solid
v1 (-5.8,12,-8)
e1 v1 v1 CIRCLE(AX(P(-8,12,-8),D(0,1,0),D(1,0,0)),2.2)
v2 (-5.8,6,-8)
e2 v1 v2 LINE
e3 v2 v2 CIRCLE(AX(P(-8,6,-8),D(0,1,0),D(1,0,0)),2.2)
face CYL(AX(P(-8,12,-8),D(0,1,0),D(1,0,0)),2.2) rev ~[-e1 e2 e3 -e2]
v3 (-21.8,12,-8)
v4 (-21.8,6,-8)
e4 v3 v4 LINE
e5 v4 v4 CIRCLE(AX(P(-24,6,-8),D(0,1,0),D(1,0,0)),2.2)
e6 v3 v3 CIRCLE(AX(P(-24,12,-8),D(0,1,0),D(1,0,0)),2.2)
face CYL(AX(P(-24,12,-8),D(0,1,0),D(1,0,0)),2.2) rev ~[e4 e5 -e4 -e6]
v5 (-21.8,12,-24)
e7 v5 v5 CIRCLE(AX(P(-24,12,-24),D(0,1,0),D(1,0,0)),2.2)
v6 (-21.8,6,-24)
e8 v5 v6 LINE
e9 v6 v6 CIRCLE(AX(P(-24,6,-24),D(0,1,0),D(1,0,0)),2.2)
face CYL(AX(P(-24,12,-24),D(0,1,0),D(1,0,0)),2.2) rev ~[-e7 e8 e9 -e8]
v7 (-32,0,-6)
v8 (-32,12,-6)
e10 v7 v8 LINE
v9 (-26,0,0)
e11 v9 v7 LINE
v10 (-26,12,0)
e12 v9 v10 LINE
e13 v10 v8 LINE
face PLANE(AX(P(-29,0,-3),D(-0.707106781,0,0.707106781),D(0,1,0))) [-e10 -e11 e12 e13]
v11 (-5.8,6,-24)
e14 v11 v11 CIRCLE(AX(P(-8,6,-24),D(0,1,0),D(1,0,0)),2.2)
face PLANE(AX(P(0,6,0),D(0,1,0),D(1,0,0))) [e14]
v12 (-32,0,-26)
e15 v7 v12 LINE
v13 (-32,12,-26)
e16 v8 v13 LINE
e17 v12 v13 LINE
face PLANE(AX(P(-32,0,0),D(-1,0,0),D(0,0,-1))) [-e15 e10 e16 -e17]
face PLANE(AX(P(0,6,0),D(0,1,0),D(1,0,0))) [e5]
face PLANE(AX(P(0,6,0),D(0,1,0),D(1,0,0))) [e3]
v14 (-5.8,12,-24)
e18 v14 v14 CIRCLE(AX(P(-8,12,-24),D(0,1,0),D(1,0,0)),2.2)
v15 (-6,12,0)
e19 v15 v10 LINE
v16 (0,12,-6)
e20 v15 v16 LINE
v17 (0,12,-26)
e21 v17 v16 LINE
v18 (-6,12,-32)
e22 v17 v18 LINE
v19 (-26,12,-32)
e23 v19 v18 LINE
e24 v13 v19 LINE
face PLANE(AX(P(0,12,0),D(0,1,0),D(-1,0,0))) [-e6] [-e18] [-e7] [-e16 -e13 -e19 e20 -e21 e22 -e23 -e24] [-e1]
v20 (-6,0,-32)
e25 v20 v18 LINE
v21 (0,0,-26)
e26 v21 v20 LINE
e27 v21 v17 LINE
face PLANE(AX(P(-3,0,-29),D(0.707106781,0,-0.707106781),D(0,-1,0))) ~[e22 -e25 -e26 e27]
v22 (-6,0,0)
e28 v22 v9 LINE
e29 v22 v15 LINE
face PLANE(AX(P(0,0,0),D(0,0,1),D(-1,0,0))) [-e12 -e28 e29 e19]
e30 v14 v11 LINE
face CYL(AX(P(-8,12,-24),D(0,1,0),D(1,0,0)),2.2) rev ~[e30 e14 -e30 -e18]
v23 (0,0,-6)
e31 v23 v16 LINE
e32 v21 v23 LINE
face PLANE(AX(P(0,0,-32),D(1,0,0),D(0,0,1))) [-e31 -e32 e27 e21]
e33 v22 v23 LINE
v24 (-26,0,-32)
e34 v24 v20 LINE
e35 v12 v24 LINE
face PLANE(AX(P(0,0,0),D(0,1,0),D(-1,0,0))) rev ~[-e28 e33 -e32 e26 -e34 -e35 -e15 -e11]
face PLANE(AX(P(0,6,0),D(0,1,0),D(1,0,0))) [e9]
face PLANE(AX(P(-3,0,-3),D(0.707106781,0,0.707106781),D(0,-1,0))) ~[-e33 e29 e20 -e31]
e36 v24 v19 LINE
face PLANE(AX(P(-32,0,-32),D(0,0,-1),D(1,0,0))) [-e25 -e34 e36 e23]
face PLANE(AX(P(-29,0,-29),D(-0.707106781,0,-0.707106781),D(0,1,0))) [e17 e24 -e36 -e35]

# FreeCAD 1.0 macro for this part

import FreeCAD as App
import Part
import Sketcher


def edges_at(feature, points):
    """Names of the edges that pass closest to the given points."""
    edges = feature.Shape.Edges
    near = lambda p: min(range(len(edges)), key=lambda i: edges[i].distToShape(Part.Vertex(*p))[0])
    return sorted({f"Edge{near(p) + 1}" for p in points})

doc = App.newDocument("Part")
body = doc.addObject("PartDesign::Body", "Body")

# Sketch on XZ plane
sketch1 = doc.addObject("Sketcher::SketchObject", "Sketch")
body.addObject(sketch1)
sketch1.AttachmentSupport = (doc.XZ_Plane, [""])
sketch1.MapMode = "FlatFace"
sketch1.addGeometry(Part.LineSegment(App.Vector(-32, 0, 0), App.Vector(0, 0, 0)), False)
sketch1.addGeometry(Part.LineSegment(App.Vector(0, 0, 0), App.Vector(0, -32, 0)), False)
sketch1.addGeometry(Part.LineSegment(App.Vector(0, -32, 0), App.Vector(-32, -32, 0)), False)
sketch1.addGeometry(Part.LineSegment(App.Vector(-32, -32, 0), App.Vector(-32, 0, 0)), False)
sketch1.addConstraint(Sketcher.Constraint("Coincident", 0, 2, 1, 1))
sketch1.addConstraint(Sketcher.Constraint("Coincident", 1, 2, 2, 1))
sketch1.addConstraint(Sketcher.Constraint("Coincident", 2, 2, 3, 1))
sketch1.addConstraint(Sketcher.Constraint("Coincident", 3, 2, 0, 1))
sketch1.addConstraint(Sketcher.Constraint("Horizontal", 0))
sketch1.addConstraint(Sketcher.Constraint("Vertical", 1))
sketch1.addConstraint(Sketcher.Constraint("Horizontal", 2))
sketch1.addConstraint(Sketcher.Constraint("Vertical", 3))
sketch1.addConstraint(Sketcher.Constraint("Coincident", 0, 2, -1, 1))
sketch1.addConstraint(Sketcher.Constraint("Equal", 2, 1))
sketch1.addConstraint(Sketcher.Constraint("DistanceX", 0, 1, 0, 2, 32.0))
pad1 = doc.addObject("PartDesign::Pad", "Pad")
body.addObject(pad1)
pad1.Profile = sketch1
pad1.Length = 12
pad1.Reversed = True

# Sketch on XZ plane
sketch2 = doc.addObject("Sketcher::SketchObject", "Sketch001")
body.addObject(sketch2)
sketch2.AttachmentSupport = (doc.XZ_Plane, [""])
sketch2.MapMode = "FlatFace"
sketch2.AttachmentOffset = App.Placement(App.Vector(0, 0, -12), App.Rotation())
sketch2.addGeometry(Part.Circle(App.Vector(-24, -8, 0), App.Vector(0, 0, 1), 2.2), False)
sketch2.addGeometry(Part.Circle(App.Vector(-24, -24, 0), App.Vector(0, 0, 1), 2.2), False)
sketch2.addGeometry(Part.Circle(App.Vector(-8, -8, 0), App.Vector(0, 0, 1), 2.2), False)
sketch2.addGeometry(Part.Circle(App.Vector(-8, -24, 0), App.Vector(0, 0, 1), 2.2), False)
sketch2.addConstraint(Sketcher.Constraint("Equal", 0, 1))
sketch2.addConstraint(Sketcher.Constraint("Equal", 1, 2))
sketch2.addConstraint(Sketcher.Constraint("Equal", 2, 3))
sketch2.addConstraint(Sketcher.Constraint("Horizontal", 0, 3, 2, 3))
sketch2.addConstraint(Sketcher.Constraint("Horizontal", 1, 3, 3, 3))
sketch2.addConstraint(Sketcher.Constraint("Vertical", 0, 3, 1, 3))
sketch2.addConstraint(Sketcher.Constraint("Vertical", 2, 3, 3, 3))
sketch2.addConstraint(Sketcher.Constraint("Diameter", 0, 4.4))
sketch2.addConstraint(Sketcher.Constraint("DistanceY", 0, 3, -1, 1, 8.0))
sketch2.addConstraint(Sketcher.Constraint("DistanceX", 2, 3, -1, 1, 8.0))
sketch2.addConstraint(Sketcher.Constraint("DistanceY", 1, 3, 0, 3, 16.0))
sketch2.addConstraint(Sketcher.Constraint("DistanceX", 0, 3, 2, 3, 16.0))
pocket1 = doc.addObject("PartDesign::Pocket", "Pocket")
body.addObject(pocket1)
pocket1.Profile = sketch2
pocket1.Length = 6
pocket1.Reversed = True
doc.recompute()

chamfer = doc.addObject("PartDesign::Chamfer", "Chamfer")
body.addObject(chamfer)
chamfer.Base = (pocket1, edges_at(pocket1, [
    (0, 6, 0),
    (-32, 6, 0),
    (-32, 6, -32),
    (0, 6, -32),
]))
chamfer.Size = 6

doc.recompute()
